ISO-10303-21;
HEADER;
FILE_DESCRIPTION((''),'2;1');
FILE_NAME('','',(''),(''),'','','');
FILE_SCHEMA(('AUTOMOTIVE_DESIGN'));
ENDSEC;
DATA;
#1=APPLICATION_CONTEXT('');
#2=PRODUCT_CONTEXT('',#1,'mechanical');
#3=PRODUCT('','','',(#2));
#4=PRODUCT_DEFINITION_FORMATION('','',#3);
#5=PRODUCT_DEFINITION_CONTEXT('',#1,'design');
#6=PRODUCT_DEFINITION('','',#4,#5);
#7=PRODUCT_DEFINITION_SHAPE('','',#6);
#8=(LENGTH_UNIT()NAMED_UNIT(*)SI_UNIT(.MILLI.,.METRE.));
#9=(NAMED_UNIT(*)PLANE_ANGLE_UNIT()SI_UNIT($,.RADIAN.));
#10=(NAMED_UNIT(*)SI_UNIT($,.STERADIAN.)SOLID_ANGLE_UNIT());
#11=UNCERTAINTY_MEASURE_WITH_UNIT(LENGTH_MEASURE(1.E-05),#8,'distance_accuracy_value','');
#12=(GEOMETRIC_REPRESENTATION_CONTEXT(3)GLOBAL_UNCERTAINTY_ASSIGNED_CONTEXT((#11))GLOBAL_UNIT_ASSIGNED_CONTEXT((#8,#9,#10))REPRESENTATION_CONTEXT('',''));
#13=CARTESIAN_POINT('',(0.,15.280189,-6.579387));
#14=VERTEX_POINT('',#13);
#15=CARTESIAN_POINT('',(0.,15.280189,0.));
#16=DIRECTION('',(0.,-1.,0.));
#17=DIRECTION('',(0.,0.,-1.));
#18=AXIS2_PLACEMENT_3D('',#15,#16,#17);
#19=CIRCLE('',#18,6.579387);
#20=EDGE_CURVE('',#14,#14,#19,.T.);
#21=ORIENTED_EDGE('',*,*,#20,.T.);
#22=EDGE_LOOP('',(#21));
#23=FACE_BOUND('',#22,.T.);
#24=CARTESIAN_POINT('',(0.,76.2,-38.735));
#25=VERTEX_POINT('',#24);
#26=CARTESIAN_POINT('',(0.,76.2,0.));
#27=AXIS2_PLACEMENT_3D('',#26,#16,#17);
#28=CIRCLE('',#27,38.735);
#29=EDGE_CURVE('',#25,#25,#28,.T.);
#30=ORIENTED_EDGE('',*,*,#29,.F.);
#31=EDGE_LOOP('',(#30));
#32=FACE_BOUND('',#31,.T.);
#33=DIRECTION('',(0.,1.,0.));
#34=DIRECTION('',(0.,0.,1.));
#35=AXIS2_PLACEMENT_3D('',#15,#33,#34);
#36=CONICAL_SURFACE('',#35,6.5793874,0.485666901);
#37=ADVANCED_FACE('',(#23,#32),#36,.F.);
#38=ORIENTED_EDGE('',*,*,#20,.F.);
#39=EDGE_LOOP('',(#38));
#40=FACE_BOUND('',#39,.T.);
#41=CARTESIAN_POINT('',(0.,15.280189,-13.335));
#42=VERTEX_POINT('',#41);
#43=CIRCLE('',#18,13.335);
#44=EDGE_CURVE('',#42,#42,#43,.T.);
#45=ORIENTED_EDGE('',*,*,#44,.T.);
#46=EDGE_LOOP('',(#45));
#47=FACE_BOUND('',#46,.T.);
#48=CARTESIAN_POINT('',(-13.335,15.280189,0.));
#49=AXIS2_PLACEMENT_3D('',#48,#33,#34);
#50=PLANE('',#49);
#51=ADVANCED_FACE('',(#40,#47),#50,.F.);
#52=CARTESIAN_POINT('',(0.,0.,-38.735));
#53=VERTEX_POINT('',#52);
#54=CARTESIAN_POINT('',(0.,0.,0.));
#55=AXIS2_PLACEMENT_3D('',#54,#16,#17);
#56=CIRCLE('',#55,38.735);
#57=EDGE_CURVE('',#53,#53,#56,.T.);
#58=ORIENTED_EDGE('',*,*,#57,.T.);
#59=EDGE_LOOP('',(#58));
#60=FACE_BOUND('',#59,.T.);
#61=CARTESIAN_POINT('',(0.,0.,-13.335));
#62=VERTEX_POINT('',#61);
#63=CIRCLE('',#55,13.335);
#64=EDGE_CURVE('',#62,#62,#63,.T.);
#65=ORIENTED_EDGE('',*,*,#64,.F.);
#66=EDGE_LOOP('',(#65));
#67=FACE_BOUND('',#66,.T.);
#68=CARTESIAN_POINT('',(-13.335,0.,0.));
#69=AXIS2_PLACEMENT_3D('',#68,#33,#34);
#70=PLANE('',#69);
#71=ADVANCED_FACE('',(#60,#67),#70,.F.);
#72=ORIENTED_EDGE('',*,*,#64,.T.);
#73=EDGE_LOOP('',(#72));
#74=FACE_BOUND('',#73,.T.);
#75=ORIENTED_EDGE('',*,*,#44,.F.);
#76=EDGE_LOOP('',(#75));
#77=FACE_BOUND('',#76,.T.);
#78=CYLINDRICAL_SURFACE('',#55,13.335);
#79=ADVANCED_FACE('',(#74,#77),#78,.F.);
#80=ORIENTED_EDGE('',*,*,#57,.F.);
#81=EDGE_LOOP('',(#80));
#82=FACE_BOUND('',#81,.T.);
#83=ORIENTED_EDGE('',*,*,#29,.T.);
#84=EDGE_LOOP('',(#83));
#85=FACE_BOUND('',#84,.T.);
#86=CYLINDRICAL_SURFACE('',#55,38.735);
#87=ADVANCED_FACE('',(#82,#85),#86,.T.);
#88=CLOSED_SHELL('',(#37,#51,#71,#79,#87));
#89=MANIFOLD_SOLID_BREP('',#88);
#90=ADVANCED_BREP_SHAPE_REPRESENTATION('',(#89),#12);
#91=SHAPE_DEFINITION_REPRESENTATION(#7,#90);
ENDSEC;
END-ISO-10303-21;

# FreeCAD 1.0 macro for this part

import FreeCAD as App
import Part
import Sketcher

V = App.Vector
Q = App.Units.Quantity


def add_polygon(sketch, points):
    """Adds a closed chain of lines whose ends are joined by coincident constraints."""
    first, n = sketch.GeometryCount, len(points)
    for a, b in zip(points, points[1:] + points[:1]):
        sketch.addGeometry(Part.LineSegment(App.Vector(*a, 0), App.Vector(*b, 0)), False)
    for i in range(n):
        sketch.addConstraint(Sketcher.Constraint("Coincident", first + i, 2, first + (i + 1) % n, 1))

doc = App.newDocument("Part")
params = doc.addObject("Spreadsheet::Sheet", "Params")
for row, (alias, value) in enumerate([
    ("sketch1_width", "1 in"),
    ("sketch1_height", "3 in"),
    ("revolution_angle", "360 deg"),
], start=1):
    params.set(f"A{row}", alias)
    params.set(f"B{row}", "=" + value)
    params.setAlias(f"B{row}", alias)

body = doc.addObject("PartDesign::Body", "Body")

# Sketch on XY plane
sketch1 = body.newObject("Sketcher::SketchObject", "Sketch")
sketch1.AttachmentSupport = (doc.getObject("XY_Plane"), [""])
sketch1.MapMode = "FlatFace"
add_polygon(sketch1, [(-13, 0), (-13, 15), (-7, 15), (-39, 76), (-39, 0)])  # lines 0-4
sketch1.addConstraint(Sketcher.Constraint("Vertical", 0))
sketch1.addConstraint(Sketcher.Constraint("Horizontal", 1))
sketch1.addConstraint(Sketcher.Constraint("Vertical", 3))
sketch1.addConstraint(Sketcher.Constraint("Horizontal", 4))
sketch1.addConstraint(Sketcher.Constraint("PointOnObject", 3, 2, -1))
sketch1.addConstraint(Sketcher.Constraint("DistanceX", 4, 1, 4, 2, Q("1 in")))
sketch1.addConstraint(Sketcher.Constraint("DistanceY", 3, 2, 3, 1, Q("3 in")))
sketch1.addConstraint(Sketcher.Constraint("DistanceX", 0, 2, -1, 1, Q("0.525 in")))
sketch1.addConstraint(Sketcher.Constraint("DistanceY", 0, 1, 0, 2, Q("15.280189 mm")))
sketch1.addConstraint(Sketcher.Constraint("Distance", 2, Q("68.885461 mm")))
sketch1.setExpression("Constraints[10]", "Params.sketch1_width")
sketch1.setExpression("Constraints[11]", "Params.sketch1_height")
revolution = body.newObject("PartDesign::Revolution", "Revolution")
revolution.Profile = sketch1
revolution.ReferenceAxis = (sketch1, ["V_Axis"])
revolution.setExpression("Angle", "Params.revolution_angle")

doc.recompute()
